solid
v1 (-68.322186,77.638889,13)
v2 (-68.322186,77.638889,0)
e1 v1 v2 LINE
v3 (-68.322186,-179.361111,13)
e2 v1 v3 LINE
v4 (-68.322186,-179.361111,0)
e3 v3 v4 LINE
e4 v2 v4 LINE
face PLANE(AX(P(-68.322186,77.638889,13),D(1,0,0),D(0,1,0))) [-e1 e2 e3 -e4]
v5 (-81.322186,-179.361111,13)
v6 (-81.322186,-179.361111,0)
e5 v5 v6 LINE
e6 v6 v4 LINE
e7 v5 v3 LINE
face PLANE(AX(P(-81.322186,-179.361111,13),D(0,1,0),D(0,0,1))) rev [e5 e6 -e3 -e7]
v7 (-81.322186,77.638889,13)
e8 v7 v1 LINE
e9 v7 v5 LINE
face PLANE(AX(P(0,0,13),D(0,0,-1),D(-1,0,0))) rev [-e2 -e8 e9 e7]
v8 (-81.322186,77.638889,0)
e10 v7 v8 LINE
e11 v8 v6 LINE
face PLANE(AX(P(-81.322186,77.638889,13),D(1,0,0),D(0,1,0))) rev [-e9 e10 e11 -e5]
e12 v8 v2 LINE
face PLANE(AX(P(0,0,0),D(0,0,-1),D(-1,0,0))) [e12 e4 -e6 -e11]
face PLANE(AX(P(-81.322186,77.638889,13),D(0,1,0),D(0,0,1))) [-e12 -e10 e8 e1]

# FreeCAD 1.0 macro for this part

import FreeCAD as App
import Part
import Sketcher

doc = App.newDocument("Part")
body = doc.addObject("PartDesign::Body", "Body")

sketch1 = doc.addObject("Sketcher::SketchObject", "Sketch")
body.addObject(sketch1)
sketch1.AttachmentSupport = (doc.XY_Plane, [""])
sketch1.MapMode = "FlatFace"
sketch1.addGeometry([
    Part.LineSegment(App.Vector(-81.322186, 77.638889, 0), App.Vector(-81.322186, -179.361111, 0)),
    Part.LineSegment(App.Vector(-81.322186, -179.361111, 0), App.Vector(-68.322186, -179.361111, 0)),
    Part.LineSegment(App.Vector(-68.322186, -179.361111, 0), App.Vector(-68.322186, 77.638889, 0)),
    Part.LineSegment(App.Vector(-68.322186, 77.638889, 0), App.Vector(-81.322186, 77.638889, 0)),
], False)
sketch1.addConstraint([
    Sketcher.Constraint("Coincident", 0, 2, 1, 1),
    Sketcher.Constraint("Coincident", 1, 2, 2, 1),
    Sketcher.Constraint("Coincident", 2, 2, 3, 1),
    Sketcher.Constraint("Coincident", 3, 2, 0, 1),
    Sketcher.Constraint("Vertical", 0),
    Sketcher.Constraint("Horizontal", 1),
    Sketcher.Constraint("Vertical", 2),
    Sketcher.Constraint("Horizontal", 3),
    Sketcher.Constraint("DistanceX", 1, 1, 1, 2, 13.0),
    Sketcher.Constraint("DistanceY", 0, 2, 0, 1, 257.0),
    Sketcher.Constraint("DistanceY", 0, 2, -1, 1, 179.361111),
    Sketcher.Constraint("DistanceX", 0, 2, -1, 1, 81.322186),
])
pad1 = doc.addObject("PartDesign::Pad", "Pad")
body.addObject(pad1)
pad1.Profile = sketch1
pad1.Length = 13

doc.recompute()
